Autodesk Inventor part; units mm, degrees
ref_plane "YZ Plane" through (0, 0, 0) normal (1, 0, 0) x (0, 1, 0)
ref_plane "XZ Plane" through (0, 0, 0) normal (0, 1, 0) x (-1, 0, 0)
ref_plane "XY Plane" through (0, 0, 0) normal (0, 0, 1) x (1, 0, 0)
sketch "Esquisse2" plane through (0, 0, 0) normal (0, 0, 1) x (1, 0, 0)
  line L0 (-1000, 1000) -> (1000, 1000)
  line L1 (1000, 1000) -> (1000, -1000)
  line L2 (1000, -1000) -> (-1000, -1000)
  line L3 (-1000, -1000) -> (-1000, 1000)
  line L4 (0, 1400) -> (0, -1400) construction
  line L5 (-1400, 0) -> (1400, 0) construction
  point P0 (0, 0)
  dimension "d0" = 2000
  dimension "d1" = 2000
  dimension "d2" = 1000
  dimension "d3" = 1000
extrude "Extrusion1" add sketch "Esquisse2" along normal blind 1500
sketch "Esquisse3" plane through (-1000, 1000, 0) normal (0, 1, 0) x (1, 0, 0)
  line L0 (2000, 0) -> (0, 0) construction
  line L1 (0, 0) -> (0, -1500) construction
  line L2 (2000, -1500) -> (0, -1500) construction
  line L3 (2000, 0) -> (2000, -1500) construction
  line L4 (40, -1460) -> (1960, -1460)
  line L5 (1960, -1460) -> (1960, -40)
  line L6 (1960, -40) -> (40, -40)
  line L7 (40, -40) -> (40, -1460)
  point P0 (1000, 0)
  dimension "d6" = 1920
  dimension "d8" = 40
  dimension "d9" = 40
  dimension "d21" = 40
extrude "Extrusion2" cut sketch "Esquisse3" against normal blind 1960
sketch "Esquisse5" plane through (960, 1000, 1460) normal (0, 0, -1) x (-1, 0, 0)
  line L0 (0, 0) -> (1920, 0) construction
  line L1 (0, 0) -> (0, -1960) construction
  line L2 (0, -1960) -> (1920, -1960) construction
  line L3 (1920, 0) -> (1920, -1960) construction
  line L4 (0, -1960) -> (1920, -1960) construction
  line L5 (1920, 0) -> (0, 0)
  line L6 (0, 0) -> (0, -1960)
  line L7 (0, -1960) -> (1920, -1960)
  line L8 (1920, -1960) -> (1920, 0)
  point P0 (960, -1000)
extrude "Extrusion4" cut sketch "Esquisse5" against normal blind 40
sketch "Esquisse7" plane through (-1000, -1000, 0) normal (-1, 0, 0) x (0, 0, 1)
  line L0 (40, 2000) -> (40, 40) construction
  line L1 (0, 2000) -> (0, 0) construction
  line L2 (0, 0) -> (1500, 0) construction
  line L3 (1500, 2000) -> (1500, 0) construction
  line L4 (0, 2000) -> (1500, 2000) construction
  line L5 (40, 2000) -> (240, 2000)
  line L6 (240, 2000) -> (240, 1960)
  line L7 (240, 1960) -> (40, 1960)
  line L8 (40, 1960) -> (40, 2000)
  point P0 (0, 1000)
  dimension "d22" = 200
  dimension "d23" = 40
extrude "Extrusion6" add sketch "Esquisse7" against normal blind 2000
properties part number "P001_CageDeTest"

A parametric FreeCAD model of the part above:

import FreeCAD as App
import Part
import Sketcher
from FreeCAD import Vector


def add_polygon(sketch, points):
    """Adds a closed chain of lines whose ends are joined by coincident constraints."""
    first, n = sketch.GeometryCount, len(points)
    for a, b in zip(points, points[1:] + points[:1]):
        sketch.addGeometry(Part.LineSegment(App.Vector(*a, 0), App.Vector(*b, 0)), False)
    for i in range(n):
        sketch.addConstraint(Sketcher.Constraint("Coincident", first + i, 2, first + (i + 1) % n, 1))

doc = App.newDocument("Part")
body = doc.addObject("PartDesign::Body", "Body")

# Sketch on XY plane
sketch1 = body.newObject("Sketcher::SketchObject", "Sketch")
sketch1.AttachmentSupport = (doc.getObject("XY_Plane"), [""])
sketch1.MapMode = "FlatFace"
add_polygon(sketch1, [(1000, 1000), (-1000, 1000), (-1000, -1000), (1000, -1000)])  # lines 0-3
sketch1.addConstraint(Sketcher.Constraint("Horizontal", 0))
sketch1.addConstraint(Sketcher.Constraint("Vertical", 1))
sketch1.addConstraint(Sketcher.Constraint("Horizontal", 2))
sketch1.addConstraint(Sketcher.Constraint("Vertical", 3))
sketch1.addConstraint(Sketcher.Constraint("Symmetric", 0, 2, 2, 2, -1, 1))
sketch1.addConstraint(Sketcher.Constraint("Equal", 2, 1))
sketch1.addConstraint(Sketcher.Constraint("DistanceX", 0, 2, 0, 1, 2000.0))
pad1 = body.newObject("PartDesign::Pad", "Pad")
pad1.Profile = sketch1
pad1.Length = 1500

# Sketch on XZ plane
sketch2 = body.newObject("Sketcher::SketchObject", "Sketch001")
sketch2.AttachmentSupport = (doc.getObject("XZ_Plane"), [""])
sketch2.MapMode = "FlatFace"
sketch2.AttachmentOffset = App.Placement(Vector(0, 0, -1000), App.Rotation())
add_polygon(sketch2, [(-960, 40), (-960, 1460), (960, 1460), (960, 40)])  # lines 0-3
sketch2.addConstraint(Sketcher.Constraint("Vertical", 0))
sketch2.addConstraint(Sketcher.Constraint("Horizontal", 1))
sketch2.addConstraint(Sketcher.Constraint("Vertical", 2))
sketch2.addConstraint(Sketcher.Constraint("Horizontal", 3))
sketch2.addConstraint(Sketcher.Constraint("DistanceX", 1, 1, 1, 2, 1920.0))
sketch2.addConstraint(Sketcher.Constraint("DistanceY", -1, 1, 2, 2, 40.0))
sketch2.addConstraint(Sketcher.Constraint("DistanceY", 0, 1, 0, 2, 1420.0))
sketch2.addConstraint(Sketcher.Constraint("DistanceX", 0, 2, -1, 1, 960.0))
pocket1 = body.newObject("PartDesign::Pocket", "Pocket")
pocket1.Profile = sketch2
pocket1.Length = 1960
pocket1.Reversed = True

# Sketch on XY plane
sketch3 = body.newObject("Sketcher::SketchObject", "Sketch002")
sketch3.AttachmentSupport = (doc.getObject("XY_Plane"), [""])
sketch3.MapMode = "FlatFace"
sketch3.AttachmentOffset = App.Placement(Vector(0, 0, 1460), App.Rotation())
add_polygon(sketch3, [(-960, -960), (-960, 1000), (960, 1000), (960, -960)])  # lines 0-3
sketch3.addConstraint(Sketcher.Constraint("Vertical", 0))
sketch3.addConstraint(Sketcher.Constraint("Horizontal", 1))
sketch3.addConstraint(Sketcher.Constraint("Vertical", 2))
sketch3.addConstraint(Sketcher.Constraint("Horizontal", 3))
sketch3.addConstraint(Sketcher.Constraint("DistanceX", 1, 1, 1, 2, 1920.0))
sketch3.addConstraint(Sketcher.Constraint("DistanceY", 0, 1, 0, 2, 1960.0))
sketch3.addConstraint(Sketcher.Constraint("DistanceX", 0, 2, -1, 1, 960.0))
sketch3.addConstraint(Sketcher.Constraint("DistanceY", -1, 1, 0, 2, 1000.0))
pocket2 = body.newObject("PartDesign::Pocket", "Pocket001")
pocket2.Profile = sketch3
pocket2.Length = 40
pocket2.Reversed = True

# Sketch on YZ plane
sketch4 = body.newObject("Sketcher::SketchObject", "Sketch003")
sketch4.AttachmentSupport = (doc.getObject("YZ_Plane"), [""])
sketch4.MapMode = "FlatFace"
sketch4.AttachmentOffset = App.Placement(Vector(0, 0, -1000), App.Rotation())
add_polygon(sketch4, [(1000, 240), (1000, 40), (960, 40), (960, 240)])  # lines 0-3
sketch4.addConstraint(Sketcher.Constraint("Vertical", 0))
sketch4.addConstraint(Sketcher.Constraint("Horizontal", 1))
sketch4.addConstraint(Sketcher.Constraint("Vertical", 2))
sketch4.addConstraint(Sketcher.Constraint("Horizontal", 3))
sketch4.addConstraint(Sketcher.Constraint("DistanceX", 1, 2, 1, 1, 40.0))
sketch4.addConstraint(Sketcher.Constraint("DistanceY", 0, 2, 0, 1, 200.0))
sketch4.addConstraint(Sketcher.Constraint("DistanceY", -1, 1, 0, 2, 40.0))
sketch4.addConstraint(Sketcher.Constraint("DistanceX", -1, 1, 0, 2, 1000.0))
pad2 = body.newObject("PartDesign::Pad", "Pad001")
pad2.Profile = sketch4
pad2.Length = 2000

doc.recompute()
